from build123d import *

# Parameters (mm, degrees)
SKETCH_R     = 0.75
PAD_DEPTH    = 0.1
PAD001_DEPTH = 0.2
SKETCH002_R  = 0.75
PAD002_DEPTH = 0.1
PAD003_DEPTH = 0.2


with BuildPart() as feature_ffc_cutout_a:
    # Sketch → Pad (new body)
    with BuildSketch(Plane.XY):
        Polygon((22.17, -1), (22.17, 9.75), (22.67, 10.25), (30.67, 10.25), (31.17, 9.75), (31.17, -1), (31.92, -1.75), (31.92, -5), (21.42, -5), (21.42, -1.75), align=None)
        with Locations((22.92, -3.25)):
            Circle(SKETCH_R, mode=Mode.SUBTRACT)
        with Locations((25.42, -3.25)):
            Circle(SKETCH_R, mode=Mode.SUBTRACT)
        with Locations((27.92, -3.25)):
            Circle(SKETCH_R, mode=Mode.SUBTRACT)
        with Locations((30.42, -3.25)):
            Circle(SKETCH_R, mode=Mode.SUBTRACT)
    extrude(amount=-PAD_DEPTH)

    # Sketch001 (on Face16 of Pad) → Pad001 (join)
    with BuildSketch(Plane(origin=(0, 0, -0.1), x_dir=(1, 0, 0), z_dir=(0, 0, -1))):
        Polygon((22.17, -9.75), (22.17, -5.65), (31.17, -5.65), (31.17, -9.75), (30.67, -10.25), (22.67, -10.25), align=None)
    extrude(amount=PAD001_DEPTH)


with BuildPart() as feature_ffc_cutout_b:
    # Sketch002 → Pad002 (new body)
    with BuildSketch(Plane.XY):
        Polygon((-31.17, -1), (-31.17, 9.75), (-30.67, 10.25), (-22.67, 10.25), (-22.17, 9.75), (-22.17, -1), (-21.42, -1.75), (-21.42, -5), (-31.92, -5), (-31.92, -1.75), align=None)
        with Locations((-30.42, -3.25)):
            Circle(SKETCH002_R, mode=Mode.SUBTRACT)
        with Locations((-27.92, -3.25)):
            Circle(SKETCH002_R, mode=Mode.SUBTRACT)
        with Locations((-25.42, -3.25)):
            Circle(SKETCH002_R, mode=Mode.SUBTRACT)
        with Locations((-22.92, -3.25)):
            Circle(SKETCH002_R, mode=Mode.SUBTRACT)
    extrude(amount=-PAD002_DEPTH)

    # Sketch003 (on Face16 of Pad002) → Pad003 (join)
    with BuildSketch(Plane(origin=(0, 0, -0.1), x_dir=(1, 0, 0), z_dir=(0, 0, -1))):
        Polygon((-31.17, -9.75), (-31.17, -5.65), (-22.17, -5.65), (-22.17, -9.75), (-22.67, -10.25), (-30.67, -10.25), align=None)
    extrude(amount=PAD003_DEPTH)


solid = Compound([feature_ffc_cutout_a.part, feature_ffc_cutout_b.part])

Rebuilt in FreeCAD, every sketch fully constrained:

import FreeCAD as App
import Part
import Sketcher


def add_polygon(sketch, points):
    """Adds a closed chain of lines whose ends are joined by coincident constraints."""
    first, n = sketch.GeometryCount, len(points)
    for a, b in zip(points, points[1:] + points[:1]):
        sketch.addGeometry(Part.LineSegment(App.Vector(*a, 0), App.Vector(*b, 0)), False)
    for i in range(n):
        sketch.addConstraint(Sketcher.Constraint("Coincident", first + i, 2, first + (i + 1) % n, 1))

doc = App.newDocument("Part")
body = doc.addObject("PartDesign::Body", "Body")

# Sketch on XY plane
sketch1 = body.newObject("Sketcher::SketchObject", "Sketch")
sketch1.AttachmentSupport = (doc.getObject("XY_Plane"), [""])
sketch1.MapMode = "FlatFace"
add_polygon(sketch1, [(22.2, 9.8), (22.2, -1), (21.4, -1.8), (21.4, -5), (31.9, -5), (31.9, -1.8), (31.2, -1), (31.2, 9.8), (30.7, 10.2), (22.7, 10.2)])  # lines 0-9
sketch1.addGeometry(Part.Circle(App.Vector(30.4, -3.2, 0), App.Vector(0, 0, 1), 0.8), False)  # 10
sketch1.addGeometry(Part.Circle(App.Vector(27.9, -3.2, 0), App.Vector(0, 0, 1), 0.8), False)  # 11
sketch1.addGeometry(Part.Circle(App.Vector(25.4, -3.2, 0), App.Vector(0, 0, 1), 0.8), False)  # 12
sketch1.addGeometry(Part.Circle(App.Vector(22.9, -3.2, 0), App.Vector(0, 0, 1), 0.8), False)  # 13
sketch1.addConstraint(Sketcher.Constraint("Vertical", 0))
sketch1.addConstraint(Sketcher.Constraint("Vertical", 2))
sketch1.addConstraint(Sketcher.Constraint("Horizontal", 3))
sketch1.addConstraint(Sketcher.Constraint("Vertical", 4))
sketch1.addConstraint(Sketcher.Constraint("Vertical", 6))
sketch1.addConstraint(Sketcher.Constraint("Horizontal", 8))
sketch1.addConstraint(Sketcher.Constraint("Equal", 10, 11))
sketch1.addConstraint(Sketcher.Constraint("Equal", 11, 12))
sketch1.addConstraint(Sketcher.Constraint("Equal", 12, 13))
sketch1.addConstraint(Sketcher.Constraint("Perpendicular", 1, 5))
sketch1.addConstraint(Sketcher.Constraint("Parallel", 5, 7))
sketch1.addConstraint(Sketcher.Constraint("Perpendicular", 7, 9))
sketch1.addConstraint(Sketcher.Constraint("Horizontal", 10, 3, 11, 3))
sketch1.addConstraint(Sketcher.Constraint("Horizontal", 11, 3, 12, 3))
sketch1.addConstraint(Sketcher.Constraint("Horizontal", 12, 3, 13, 3))
sketch1.addConstraint(Sketcher.Constraint("Horizontal", 1, 2, 4, 2))
sketch1.addConstraint(Sketcher.Constraint("Horizontal", 0, 2, 5, 2))
sketch1.addConstraint(Sketcher.Constraint("Horizontal", 6, 2, 9, 2))
sketch1.addConstraint(Sketcher.Constraint("Equal", 1, 5))
sketch1.addConstraint(Sketcher.Constraint("Diameter", 10, 1.5))
sketch1.addConstraint(Sketcher.Constraint("DistanceX", 8, 2, 8, 1, 8.0))
sketch1.addConstraint(Sketcher.Constraint("DistanceX", 3, 1, 3, 2, 10.5))
sketch1.addConstraint(Sketcher.Constraint("DistanceY", 0, 2, -1, 1, 1.0))
sketch1.addConstraint(Sketcher.Constraint("DistanceY", 2, 2, -1, 1, 5.0))
sketch1.addConstraint(Sketcher.Constraint("DistanceX", 12, 3, 10, 3, 5.0))
sketch1.addConstraint(Sketcher.Constraint("DistanceX", 13, 3, 11, 3, 5.0))
sketch1.addConstraint(Sketcher.Constraint("DistanceX", 1, 2, 12, 3, 4.0))
sketch1.addConstraint(Sketcher.Constraint("DistanceX", 11, 3, 3, 2, 4.0))
sketch1.addConstraint(Sketcher.Constraint("DistanceY", 10, 3, 6, 2, 13.0))
sketch1.addConstraint(Sketcher.Constraint("DistanceX", 0, 2, 6, 2, 9.0))
sketch1.addConstraint(Sketcher.Constraint("DistanceY", 4, 2, 7, 2, 12.0))
sketch1.addConstraint(Sketcher.Constraint("DistanceX", -1, 1, 10, 3, 30.42))
pad1 = body.newObject("PartDesign::Pad", "Pad")
pad1.Profile = sketch1
pad1.Length = 0.1
pad1.Reversed = True

# Sketch on XY plane
sketch2 = body.newObject("Sketcher::SketchObject", "Sketch001")
sketch2.AttachmentSupport = (doc.getObject("XY_Plane"), [""])
sketch2.MapMode = "FlatFace"
sketch2.AttachmentOffset = App.Placement(App.Vector(0, 0, -0.1), App.Rotation())
add_polygon(sketch2, [(22.2, 5.7), (22.2, 9.8), (22.7, 10.2), (30.7, 10.2), (31.2, 9.8), (31.2, 5.7)])  # lines 0-5
sketch2.addConstraint(Sketcher.Constraint("Vertical", 0))
sketch2.addConstraint(Sketcher.Constraint("Horizontal", 2))
sketch2.addConstraint(Sketcher.Constraint("Vertical", 4))
sketch2.addConstraint(Sketcher.Constraint("Horizontal", 5))
sketch2.addConstraint(Sketcher.Constraint("Perpendicular", 1, 3))
sketch2.addConstraint(Sketcher.Constraint("Horizontal", 0, 2, 3, 2))
sketch2.addConstraint(Sketcher.Constraint("Equal", 1, 3))
sketch2.addConstraint(Sketcher.Constraint("DistanceX", 2, 1, 2, 2, 8.0))
sketch2.addConstraint(Sketcher.Constraint("DistanceX", 5, 2, 5, 1, 9.0))
sketch2.addConstraint(Sketcher.Constraint("DistanceY", 0, 1, 0, 2, 4.1))
sketch2.addConstraint(Sketcher.Constraint("DistanceX", -1, 1, 0, 2, 22.17))
sketch2.addConstraint(Sketcher.Constraint("DistanceY", -1, 1, 0, 2, 9.75))
pad2 = body.newObject("PartDesign::Pad", "Pad001")
pad2.Profile = sketch2
pad2.Length = 0.2
pad2.Reversed = True
body2 = doc.addObject("PartDesign::Body", "Body001")

# Sketch on XY plane
sketch3 = body2.newObject("Sketcher::SketchObject", "Sketch002")
sketch3.AttachmentSupport = (doc.getObject("XY_Plane001"), [""])
sketch3.MapMode = "FlatFace"
add_polygon(sketch3, [(-31.2, 9.8), (-31.2, -1), (-31.9, -1.8), (-31.9, -5), (-21.4, -5), (-21.4, -1.8), (-22.2, -1), (-22.2, 9.8), (-22.7, 10.2), (-30.7, 10.2)])  # lines 0-9
sketch3.addGeometry(Part.Circle(App.Vector(-22.9, -3.2, 0), App.Vector(0, 0, 1), 0.8), False)  # 10
sketch3.addGeometry(Part.Circle(App.Vector(-25.4, -3.2, 0), App.Vector(0, 0, 1), 0.8), False)  # 11
sketch3.addGeometry(Part.Circle(App.Vector(-27.9, -3.2, 0), App.Vector(0, 0, 1), 0.8), False)  # 12
sketch3.addGeometry(Part.Circle(App.Vector(-30.4, -3.2, 0), App.Vector(0, 0, 1), 0.8), False)  # 13
sketch3.addConstraint(Sketcher.Constraint("Vertical", 0))
sketch3.addConstraint(Sketcher.Constraint("Vertical", 2))
sketch3.addConstraint(Sketcher.Constraint("Horizontal", 3))
sketch3.addConstraint(Sketcher.Constraint("Vertical", 4))
sketch3.addConstraint(Sketcher.Constraint("Vertical", 6))
sketch3.addConstraint(Sketcher.Constraint("Horizontal", 8))
sketch3.addConstraint(Sketcher.Constraint("Equal", 10, 11))
sketch3.addConstraint(Sketcher.Constraint("Equal", 11, 12))
sketch3.addConstraint(Sketcher.Constraint("Equal", 12, 13))
sketch3.addConstraint(Sketcher.Constraint("Perpendicular", 1, 5))
sketch3.addConstraint(Sketcher.Constraint("Parallel", 5, 7))
sketch3.addConstraint(Sketcher.Constraint("Perpendicular", 7, 9))
sketch3.addConstraint(Sketcher.Constraint("Horizontal", 10, 3, 11, 3))
sketch3.addConstraint(Sketcher.Constraint("Horizontal", 11, 3, 12, 3))
sketch3.addConstraint(Sketcher.Constraint("Horizontal", 12, 3, 13, 3))
sketch3.addConstraint(Sketcher.Constraint("Horizontal", 1, 2, 4, 2))
sketch3.addConstraint(Sketcher.Constraint("Horizontal", 0, 2, 5, 2))
sketch3.addConstraint(Sketcher.Constraint("Horizontal", 6, 2, 9, 2))
sketch3.addConstraint(Sketcher.Constraint("Equal", 1, 5))
sketch3.addConstraint(Sketcher.Constraint("Diameter", 10, 1.5))
sketch3.addConstraint(Sketcher.Constraint("DistanceX", 8, 2, 8, 1, 8.0))
sketch3.addConstraint(Sketcher.Constraint("DistanceX", 3, 1, 3, 2, 10.5))
sketch3.addConstraint(Sketcher.Constraint("DistanceY", 0, 2, -1, 1, 1.0))
sketch3.addConstraint(Sketcher.Constraint("DistanceY", 2, 2, -1, 1, 5.0))
sketch3.addConstraint(Sketcher.Constraint("DistanceX", 12, 3, 10, 3, 5.0))
sketch3.addConstraint(Sketcher.Constraint("DistanceX", 13, 3, 11, 3, 5.0))
sketch3.addConstraint(Sketcher.Constraint("DistanceX", 1, 2, 12, 3, 4.0))
sketch3.addConstraint(Sketcher.Constraint("DistanceX", 11, 3, 3, 2, 4.0))
sketch3.addConstraint(Sketcher.Constraint("DistanceY", 10, 3, 6, 2, 13.0))
sketch3.addConstraint(Sketcher.Constraint("DistanceX", 0, 2, 6, 2, 9.0))
sketch3.addConstraint(Sketcher.Constraint("DistanceY", 4, 2, 7, 2, 12.0))
sketch3.addConstraint(Sketcher.Constraint("DistanceX", 10, 3, -1, 1, 22.92))
pad3 = body2.newObject("PartDesign::Pad", "Pad002")
pad3.Profile = sketch3
pad3.Length = 0.1
pad3.Reversed = True

# Sketch on XY plane
sketch4 = body2.newObject("Sketcher::SketchObject", "Sketch003")
sketch4.AttachmentSupport = (doc.getObject("XY_Plane001"), [""])
sketch4.MapMode = "FlatFace"
sketch4.AttachmentOffset = App.Placement(App.Vector(0, 0, -0.1), App.Rotation())
add_polygon(sketch4, [(-31.2, 5.7), (-31.2, 9.8), (-30.7, 10.2), (-22.7, 10.2), (-22.2, 9.8), (-22.2, 5.7)])  # lines 0-5
sketch4.addConstraint(Sketcher.Constraint("Vertical", 0))
sketch4.addConstraint(Sketcher.Constraint("Horizontal", 2))
sketch4.addConstraint(Sketcher.Constraint("Vertical", 4))
sketch4.addConstraint(Sketcher.Constraint("Horizontal", 5))
sketch4.addConstraint(Sketcher.Constraint("Perpendicular", 1, 3))
sketch4.addConstraint(Sketcher.Constraint("Horizontal", 0, 2, 3, 2))
sketch4.addConstraint(Sketcher.Constraint("Equal", 1, 3))
sketch4.addConstraint(Sketcher.Constraint("DistanceX", 2, 1, 2, 2, 8.0))
sketch4.addConstraint(Sketcher.Constraint("DistanceX", 5, 2, 5, 1, 9.0))
sketch4.addConstraint(Sketcher.Constraint("DistanceY", 0, 1, 0, 2, 4.1))
sketch4.addConstraint(Sketcher.Constraint("DistanceX", 0, 2, -1, 1, 31.17))
sketch4.addConstraint(Sketcher.Constraint("DistanceY", -1, 1, 0, 2, 9.75))
pad4 = body2.newObject("PartDesign::Pad", "Pad003")
pad4.Profile = sketch4
pad4.Length = 0.2
pad4.Reversed = True

doc.recompute()
